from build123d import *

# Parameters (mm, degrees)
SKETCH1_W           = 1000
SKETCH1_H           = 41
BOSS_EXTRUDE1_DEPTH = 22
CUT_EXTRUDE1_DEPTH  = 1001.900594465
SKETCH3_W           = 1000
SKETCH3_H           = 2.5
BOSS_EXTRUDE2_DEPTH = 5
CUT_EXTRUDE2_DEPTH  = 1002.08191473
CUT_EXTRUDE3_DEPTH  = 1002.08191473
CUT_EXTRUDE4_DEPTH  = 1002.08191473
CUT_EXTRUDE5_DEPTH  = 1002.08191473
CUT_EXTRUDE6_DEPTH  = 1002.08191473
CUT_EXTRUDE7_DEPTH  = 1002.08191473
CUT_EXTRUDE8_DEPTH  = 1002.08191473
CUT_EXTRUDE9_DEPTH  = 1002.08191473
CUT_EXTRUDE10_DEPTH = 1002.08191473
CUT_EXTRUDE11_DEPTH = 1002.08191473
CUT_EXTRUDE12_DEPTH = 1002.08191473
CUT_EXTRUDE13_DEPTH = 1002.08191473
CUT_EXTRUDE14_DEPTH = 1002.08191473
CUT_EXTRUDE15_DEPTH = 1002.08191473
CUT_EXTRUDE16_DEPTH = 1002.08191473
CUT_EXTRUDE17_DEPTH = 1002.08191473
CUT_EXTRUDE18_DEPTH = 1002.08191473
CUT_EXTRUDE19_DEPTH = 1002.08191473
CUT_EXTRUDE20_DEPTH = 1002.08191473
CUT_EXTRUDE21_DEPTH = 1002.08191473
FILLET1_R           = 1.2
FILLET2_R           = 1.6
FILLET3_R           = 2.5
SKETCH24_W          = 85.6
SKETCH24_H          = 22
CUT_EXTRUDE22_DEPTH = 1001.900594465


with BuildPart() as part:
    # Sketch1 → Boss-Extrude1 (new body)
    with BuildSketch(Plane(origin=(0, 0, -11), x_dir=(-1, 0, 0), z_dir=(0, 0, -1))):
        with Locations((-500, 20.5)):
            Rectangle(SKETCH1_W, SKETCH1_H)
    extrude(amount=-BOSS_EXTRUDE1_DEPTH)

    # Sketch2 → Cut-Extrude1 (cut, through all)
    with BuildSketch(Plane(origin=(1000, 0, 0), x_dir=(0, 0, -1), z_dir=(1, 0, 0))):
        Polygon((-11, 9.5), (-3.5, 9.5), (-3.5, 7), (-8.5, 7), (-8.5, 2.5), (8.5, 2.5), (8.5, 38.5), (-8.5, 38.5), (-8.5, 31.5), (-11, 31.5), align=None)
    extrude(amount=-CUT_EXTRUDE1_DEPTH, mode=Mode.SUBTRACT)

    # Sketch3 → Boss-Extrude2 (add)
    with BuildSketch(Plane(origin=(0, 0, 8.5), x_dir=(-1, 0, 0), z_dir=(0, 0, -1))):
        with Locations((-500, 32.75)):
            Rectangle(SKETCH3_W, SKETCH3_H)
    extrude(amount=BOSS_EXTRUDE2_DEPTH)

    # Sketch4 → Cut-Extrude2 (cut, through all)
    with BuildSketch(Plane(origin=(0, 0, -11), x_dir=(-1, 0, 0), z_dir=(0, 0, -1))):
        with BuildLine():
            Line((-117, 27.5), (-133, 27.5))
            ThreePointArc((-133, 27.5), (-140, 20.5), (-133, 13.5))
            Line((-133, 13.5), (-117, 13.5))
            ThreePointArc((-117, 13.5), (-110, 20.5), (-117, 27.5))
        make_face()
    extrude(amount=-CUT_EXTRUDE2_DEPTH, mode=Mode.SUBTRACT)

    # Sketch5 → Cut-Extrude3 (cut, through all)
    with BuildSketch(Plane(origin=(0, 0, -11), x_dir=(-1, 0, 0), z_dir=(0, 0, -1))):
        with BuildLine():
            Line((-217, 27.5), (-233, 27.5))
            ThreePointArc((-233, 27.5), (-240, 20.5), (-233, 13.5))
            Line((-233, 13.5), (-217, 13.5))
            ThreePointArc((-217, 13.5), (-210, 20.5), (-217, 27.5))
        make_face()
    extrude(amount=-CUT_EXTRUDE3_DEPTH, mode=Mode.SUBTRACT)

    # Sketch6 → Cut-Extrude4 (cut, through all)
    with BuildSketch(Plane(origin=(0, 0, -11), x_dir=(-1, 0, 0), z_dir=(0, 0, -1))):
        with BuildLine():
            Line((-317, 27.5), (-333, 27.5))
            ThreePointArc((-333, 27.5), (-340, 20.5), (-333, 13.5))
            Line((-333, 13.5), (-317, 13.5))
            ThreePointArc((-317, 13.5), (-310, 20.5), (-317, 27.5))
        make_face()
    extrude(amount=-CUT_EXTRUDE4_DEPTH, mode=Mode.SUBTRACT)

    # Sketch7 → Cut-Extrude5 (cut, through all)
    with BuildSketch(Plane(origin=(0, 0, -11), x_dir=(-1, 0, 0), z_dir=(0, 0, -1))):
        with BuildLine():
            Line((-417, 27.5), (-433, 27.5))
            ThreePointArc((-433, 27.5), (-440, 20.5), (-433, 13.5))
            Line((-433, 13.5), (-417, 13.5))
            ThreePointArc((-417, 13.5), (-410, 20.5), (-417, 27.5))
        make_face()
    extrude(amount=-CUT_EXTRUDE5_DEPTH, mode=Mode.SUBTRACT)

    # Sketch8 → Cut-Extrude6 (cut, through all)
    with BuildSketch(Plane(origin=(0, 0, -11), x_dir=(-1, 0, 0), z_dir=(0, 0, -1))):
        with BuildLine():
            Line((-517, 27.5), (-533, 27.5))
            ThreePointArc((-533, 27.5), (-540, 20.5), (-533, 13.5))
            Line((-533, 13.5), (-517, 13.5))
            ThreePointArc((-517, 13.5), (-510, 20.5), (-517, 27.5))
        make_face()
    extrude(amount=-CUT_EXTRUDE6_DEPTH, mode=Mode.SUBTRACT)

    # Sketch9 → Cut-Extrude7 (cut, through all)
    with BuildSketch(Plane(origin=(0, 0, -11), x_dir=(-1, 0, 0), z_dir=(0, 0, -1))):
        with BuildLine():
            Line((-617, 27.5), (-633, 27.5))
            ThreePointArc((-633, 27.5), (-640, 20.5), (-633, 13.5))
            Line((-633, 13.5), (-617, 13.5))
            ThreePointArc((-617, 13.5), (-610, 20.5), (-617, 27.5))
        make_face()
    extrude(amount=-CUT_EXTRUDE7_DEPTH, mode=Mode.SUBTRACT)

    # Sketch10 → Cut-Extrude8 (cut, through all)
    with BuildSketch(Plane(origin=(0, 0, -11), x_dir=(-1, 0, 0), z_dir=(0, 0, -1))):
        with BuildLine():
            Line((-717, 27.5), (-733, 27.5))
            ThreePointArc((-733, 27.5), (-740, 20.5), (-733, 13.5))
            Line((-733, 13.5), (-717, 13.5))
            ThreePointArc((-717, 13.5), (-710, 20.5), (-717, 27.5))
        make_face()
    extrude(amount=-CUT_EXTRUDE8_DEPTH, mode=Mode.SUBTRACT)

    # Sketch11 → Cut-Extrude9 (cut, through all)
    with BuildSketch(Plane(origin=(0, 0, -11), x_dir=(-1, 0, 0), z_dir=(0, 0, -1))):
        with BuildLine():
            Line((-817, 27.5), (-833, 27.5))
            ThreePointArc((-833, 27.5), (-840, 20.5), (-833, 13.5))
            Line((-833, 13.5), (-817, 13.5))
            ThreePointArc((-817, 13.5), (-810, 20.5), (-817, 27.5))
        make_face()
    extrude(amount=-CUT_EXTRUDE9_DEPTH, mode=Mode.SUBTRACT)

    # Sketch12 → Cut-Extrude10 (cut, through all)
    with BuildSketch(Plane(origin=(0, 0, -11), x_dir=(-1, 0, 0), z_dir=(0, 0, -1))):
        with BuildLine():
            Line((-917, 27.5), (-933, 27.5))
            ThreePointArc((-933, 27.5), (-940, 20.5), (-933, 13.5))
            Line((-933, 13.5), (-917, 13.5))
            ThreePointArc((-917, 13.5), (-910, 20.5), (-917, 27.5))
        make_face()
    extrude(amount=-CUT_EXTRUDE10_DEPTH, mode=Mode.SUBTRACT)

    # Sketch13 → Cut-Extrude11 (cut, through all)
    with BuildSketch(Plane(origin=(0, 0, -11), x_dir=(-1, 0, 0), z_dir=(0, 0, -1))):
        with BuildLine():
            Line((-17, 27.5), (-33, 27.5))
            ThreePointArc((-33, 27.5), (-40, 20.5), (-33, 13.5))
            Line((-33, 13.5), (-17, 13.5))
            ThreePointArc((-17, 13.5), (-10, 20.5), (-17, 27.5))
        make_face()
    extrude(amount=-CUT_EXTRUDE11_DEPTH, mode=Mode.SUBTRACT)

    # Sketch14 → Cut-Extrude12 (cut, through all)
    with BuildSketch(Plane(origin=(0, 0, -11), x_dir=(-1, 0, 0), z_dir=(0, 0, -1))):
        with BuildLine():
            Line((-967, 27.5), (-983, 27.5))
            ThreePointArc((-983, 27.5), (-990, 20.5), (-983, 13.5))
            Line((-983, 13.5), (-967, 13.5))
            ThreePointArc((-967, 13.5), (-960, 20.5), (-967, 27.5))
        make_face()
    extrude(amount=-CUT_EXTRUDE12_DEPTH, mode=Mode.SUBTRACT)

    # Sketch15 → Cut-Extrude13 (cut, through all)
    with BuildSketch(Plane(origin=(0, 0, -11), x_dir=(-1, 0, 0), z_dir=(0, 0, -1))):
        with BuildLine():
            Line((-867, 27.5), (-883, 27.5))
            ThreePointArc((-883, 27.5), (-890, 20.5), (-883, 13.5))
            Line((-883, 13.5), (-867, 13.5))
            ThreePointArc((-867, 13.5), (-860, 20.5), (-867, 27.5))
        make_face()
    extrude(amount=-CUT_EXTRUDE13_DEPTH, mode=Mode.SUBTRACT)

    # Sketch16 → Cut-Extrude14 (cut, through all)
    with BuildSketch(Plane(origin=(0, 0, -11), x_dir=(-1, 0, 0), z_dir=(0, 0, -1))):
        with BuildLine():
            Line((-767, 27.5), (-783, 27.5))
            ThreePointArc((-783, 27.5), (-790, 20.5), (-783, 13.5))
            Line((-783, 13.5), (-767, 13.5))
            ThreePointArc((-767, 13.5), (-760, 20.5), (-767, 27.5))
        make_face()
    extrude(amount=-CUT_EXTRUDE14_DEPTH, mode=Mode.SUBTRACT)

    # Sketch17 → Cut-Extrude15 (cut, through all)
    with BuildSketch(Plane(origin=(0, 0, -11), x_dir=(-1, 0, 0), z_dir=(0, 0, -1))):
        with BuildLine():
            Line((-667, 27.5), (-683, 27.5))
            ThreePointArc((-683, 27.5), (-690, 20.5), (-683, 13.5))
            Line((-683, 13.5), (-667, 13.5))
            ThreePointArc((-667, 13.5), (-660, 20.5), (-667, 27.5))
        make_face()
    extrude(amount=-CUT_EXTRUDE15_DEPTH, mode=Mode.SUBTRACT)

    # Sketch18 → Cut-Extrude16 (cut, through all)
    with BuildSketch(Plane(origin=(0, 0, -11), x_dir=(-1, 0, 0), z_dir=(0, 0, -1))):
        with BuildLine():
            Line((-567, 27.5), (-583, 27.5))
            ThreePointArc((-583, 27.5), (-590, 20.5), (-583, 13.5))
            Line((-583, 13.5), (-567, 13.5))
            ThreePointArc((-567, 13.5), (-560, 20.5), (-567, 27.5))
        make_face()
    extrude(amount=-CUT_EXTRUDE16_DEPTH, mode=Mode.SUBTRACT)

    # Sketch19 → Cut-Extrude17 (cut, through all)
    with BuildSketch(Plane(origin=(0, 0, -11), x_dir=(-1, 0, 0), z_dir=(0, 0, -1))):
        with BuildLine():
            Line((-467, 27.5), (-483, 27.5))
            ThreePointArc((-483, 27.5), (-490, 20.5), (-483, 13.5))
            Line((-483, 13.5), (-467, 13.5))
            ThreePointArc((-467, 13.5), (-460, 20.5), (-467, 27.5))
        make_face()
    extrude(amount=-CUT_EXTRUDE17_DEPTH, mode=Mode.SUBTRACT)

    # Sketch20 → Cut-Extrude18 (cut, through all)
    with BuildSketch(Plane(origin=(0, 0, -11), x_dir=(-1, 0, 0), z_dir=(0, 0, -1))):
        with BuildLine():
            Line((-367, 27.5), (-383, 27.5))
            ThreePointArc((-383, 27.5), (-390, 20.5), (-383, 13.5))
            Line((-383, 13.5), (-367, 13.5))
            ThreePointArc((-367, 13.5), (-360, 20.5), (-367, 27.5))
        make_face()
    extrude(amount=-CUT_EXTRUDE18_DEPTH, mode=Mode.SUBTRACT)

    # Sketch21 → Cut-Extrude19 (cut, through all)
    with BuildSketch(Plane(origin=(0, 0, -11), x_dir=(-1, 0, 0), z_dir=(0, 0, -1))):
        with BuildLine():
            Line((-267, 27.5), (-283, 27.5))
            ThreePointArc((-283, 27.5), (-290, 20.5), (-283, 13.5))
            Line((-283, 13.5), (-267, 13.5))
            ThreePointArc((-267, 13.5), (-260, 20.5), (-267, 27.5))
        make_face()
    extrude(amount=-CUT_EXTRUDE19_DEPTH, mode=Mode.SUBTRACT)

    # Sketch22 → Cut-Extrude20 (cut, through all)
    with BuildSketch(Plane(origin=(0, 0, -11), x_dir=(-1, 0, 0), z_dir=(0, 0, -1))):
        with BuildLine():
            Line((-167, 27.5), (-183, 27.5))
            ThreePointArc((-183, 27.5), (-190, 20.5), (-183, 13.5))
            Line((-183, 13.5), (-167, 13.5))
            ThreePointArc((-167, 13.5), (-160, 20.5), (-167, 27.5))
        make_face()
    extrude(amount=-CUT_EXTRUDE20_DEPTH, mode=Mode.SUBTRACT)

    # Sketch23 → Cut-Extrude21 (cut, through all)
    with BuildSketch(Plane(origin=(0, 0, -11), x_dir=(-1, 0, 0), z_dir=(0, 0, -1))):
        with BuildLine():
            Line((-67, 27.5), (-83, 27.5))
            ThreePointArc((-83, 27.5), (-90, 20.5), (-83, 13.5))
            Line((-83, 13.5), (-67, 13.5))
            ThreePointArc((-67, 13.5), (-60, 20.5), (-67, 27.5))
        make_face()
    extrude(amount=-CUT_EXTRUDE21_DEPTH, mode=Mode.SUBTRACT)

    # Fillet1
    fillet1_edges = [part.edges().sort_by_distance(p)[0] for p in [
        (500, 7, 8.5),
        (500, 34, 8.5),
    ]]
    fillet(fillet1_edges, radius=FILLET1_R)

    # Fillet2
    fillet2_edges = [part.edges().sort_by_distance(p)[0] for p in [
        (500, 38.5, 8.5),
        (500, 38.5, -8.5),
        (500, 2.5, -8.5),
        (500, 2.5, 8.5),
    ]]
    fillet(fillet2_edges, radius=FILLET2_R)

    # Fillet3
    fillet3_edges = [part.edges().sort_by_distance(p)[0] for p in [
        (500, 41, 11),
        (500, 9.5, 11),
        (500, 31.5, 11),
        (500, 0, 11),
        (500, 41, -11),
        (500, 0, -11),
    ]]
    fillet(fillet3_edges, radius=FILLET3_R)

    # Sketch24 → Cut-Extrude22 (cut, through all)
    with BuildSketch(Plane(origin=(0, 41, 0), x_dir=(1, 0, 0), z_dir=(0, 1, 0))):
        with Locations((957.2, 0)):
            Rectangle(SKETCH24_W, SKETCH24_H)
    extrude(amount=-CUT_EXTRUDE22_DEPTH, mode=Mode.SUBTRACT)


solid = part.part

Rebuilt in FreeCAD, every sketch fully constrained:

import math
import FreeCAD as App
import Part
import Sketcher
from FreeCAD import Vector


def edges_at(feature, points):
    """Names of the edges that pass closest to the given points."""
    edges = feature.Shape.Edges
    near = lambda p: min(range(len(edges)), key=lambda i: edges[i].distToShape(Part.Vertex(*p))[0])
    return sorted({f"Edge{near(p) + 1}" for p in points})

doc = App.newDocument("Part")
body = doc.addObject("PartDesign::Body", "Body")

# Sketch on XY plane
sketch1 = body.newObject("Sketcher::SketchObject", "Sketch")
sketch1.AttachmentSupport = (doc.getObject("XY_Plane"), [""])
sketch1.MapMode = "FlatFace"
sketch1.AttachmentOffset = App.Placement(Vector(0, 0, -11), App.Rotation())
sketch1.addGeometry([
    Part.LineSegment(Vector(1000, 41, 0), Vector(1000, 0, 0)),
    Part.LineSegment(Vector(1000, 0, 0), Vector(0, 0, 0)),
    Part.LineSegment(Vector(0, 0, 0), Vector(0, 41, 0)),
    Part.LineSegment(Vector(0, 41, 0), Vector(1000, 41, 0)),
], False)
sketch1.addConstraint([
    Sketcher.Constraint("Coincident", 0, 2, 1, 1),
    Sketcher.Constraint("Coincident", 1, 2, 2, 1),
    Sketcher.Constraint("Coincident", 2, 2, 3, 1),
    Sketcher.Constraint("Coincident", 3, 2, 0, 1),
    Sketcher.Constraint("Vertical", 0),
    Sketcher.Constraint("Horizontal", 1),
    Sketcher.Constraint("Vertical", 2),
    Sketcher.Constraint("Horizontal", 3),
    Sketcher.Constraint("Coincident", 1, 2, -1, 1),
    Sketcher.Constraint("DistanceX", 1, 2, 1, 1, 1000.0),
    Sketcher.Constraint("DistanceY", 0, 2, 0, 1, 41.0),
])
pad1 = body.newObject("PartDesign::Pad", "Pad")
pad1.Profile = sketch1
pad1.Length = 22

# Sketch on YZ plane
sketch2 = body.newObject("Sketcher::SketchObject", "Sketch001")
sketch2.AttachmentSupport = (doc.getObject("YZ_Plane"), [""])
sketch2.MapMode = "FlatFace"
sketch2.AttachmentOffset = App.Placement(Vector(0, 0, 1000), App.Rotation())
sketch2.addGeometry([
    Part.LineSegment(Vector(9.5, 11, 0), Vector(9.5, 3.5, 0)),  # 0
    Part.LineSegment(Vector(9.5, 3.5, 0), Vector(7, 3.5, 0)),  # 1
    Part.LineSegment(Vector(7, 3.5, 0), Vector(7, 8.5, 0)),  # 2
    Part.LineSegment(Vector(7, 8.5, 0), Vector(2.5, 8.5, 0)),  # 3
    Part.LineSegment(Vector(2.5, 8.5, 0), Vector(2.5, -8.5, 0)),  # 4
    Part.LineSegment(Vector(2.5, -8.5, 0), Vector(38.5, -8.5, 0)),  # 5
    Part.LineSegment(Vector(38.5, -8.5, 0), Vector(38.5, 8.5, 0)),  # 6
    Part.LineSegment(Vector(38.5, 8.5, 0), Vector(31.5, 8.5, 0)),  # 7
    Part.LineSegment(Vector(31.5, 8.5, 0), Vector(31.5, 11, 0)),  # 8
    Part.LineSegment(Vector(31.5, 11, 0), Vector(9.5, 11, 0)),  # 9
], False)
sketch2.addConstraint([
    Sketcher.Constraint("Coincident", 0, 2, 1, 1),
    Sketcher.Constraint("Coincident", 1, 2, 2, 1),
    Sketcher.Constraint("Coincident", 2, 2, 3, 1),
    Sketcher.Constraint("Coincident", 3, 2, 4, 1),
    Sketcher.Constraint("Coincident", 4, 2, 5, 1),
    Sketcher.Constraint("Coincident", 5, 2, 6, 1),
    Sketcher.Constraint("Coincident", 6, 2, 7, 1),
    Sketcher.Constraint("Coincident", 7, 2, 8, 1),
    Sketcher.Constraint("Coincident", 8, 2, 9, 1),
    Sketcher.Constraint("Coincident", 9, 2, 0, 1),
    Sketcher.Constraint("Vertical", 0),
    Sketcher.Constraint("Horizontal", 1),
    Sketcher.Constraint("Vertical", 2),
    Sketcher.Constraint("Horizontal", 3),
    Sketcher.Constraint("Vertical", 4),
    Sketcher.Constraint("Horizontal", 5),
    Sketcher.Constraint("Vertical", 6),
    Sketcher.Constraint("Horizontal", 7),
    Sketcher.Constraint("Vertical", 8),
    Sketcher.Constraint("Horizontal", 9),
    Sketcher.Constraint("Horizontal", 3, 2, 6, 2),
    Sketcher.Constraint("Equal", 1, 8),
    Sketcher.Constraint("DistanceX", 5, 1, 5, 2, 36.0),
    Sketcher.Constraint("DistanceX", 7, 2, 7, 1, 7.0),
    Sketcher.Constraint("DistanceX", 9, 2, 9, 1, 22.0),
    Sketcher.Constraint("DistanceY", 2, 1, 2, 2, 5.0),
    Sketcher.Constraint("DistanceY", 4, 2, 4, 1, 17.0),
    Sketcher.Constraint("DistanceX", 1, 2, 1, 1, 2.5),
    Sketcher.Constraint("DistanceX", -1, 1, 1, 2, 7.0),
    Sketcher.Constraint("DistanceY", -1, 1, 8, 2, 11.0),
])
pocket1 = body.newObject("PartDesign::Pocket", "Pocket")
pocket1.Profile = sketch2
pocket1.Type = "ThroughAll"

# Sketch on XY plane
sketch3 = body.newObject("Sketcher::SketchObject", "Sketch002")
sketch3.AttachmentSupport = (doc.getObject("XY_Plane"), [""])
sketch3.MapMode = "FlatFace"
sketch3.AttachmentOffset = App.Placement(Vector(0, 0, 8.5), App.Rotation())
sketch3.addGeometry([
    Part.LineSegment(Vector(1000, 34, 0), Vector(1000, 31.5, 0)),
    Part.LineSegment(Vector(1000, 31.5, 0), Vector(0, 31.5, 0)),
    Part.LineSegment(Vector(0, 31.5, 0), Vector(0, 34, 0)),
    Part.LineSegment(Vector(0, 34, 0), Vector(1000, 34, 0)),
], False)
sketch3.addConstraint([
    Sketcher.Constraint("Coincident", 0, 2, 1, 1),
    Sketcher.Constraint("Coincident", 1, 2, 2, 1),
    Sketcher.Constraint("Coincident", 2, 2, 3, 1),
    Sketcher.Constraint("Coincident", 3, 2, 0, 1),
    Sketcher.Constraint("Vertical", 0),
    Sketcher.Constraint("Horizontal", 1),
    Sketcher.Constraint("Vertical", 2),
    Sketcher.Constraint("Horizontal", 3),
    Sketcher.Constraint("PointOnObject", 1, 2, -2),
    Sketcher.Constraint("DistanceX", 1, 2, 1, 1, 1000.0),
    Sketcher.Constraint("DistanceY", 0, 2, 0, 1, 2.5),
    Sketcher.Constraint("DistanceY", -1, 1, 2, 2, 34.0),
])
pad2 = body.newObject("PartDesign::Pad", "Pad001")
pad2.Profile = sketch3
pad2.Length = 5
pad2.Reversed = True

# Sketch on XY plane
sketch4 = body.newObject("Sketcher::SketchObject", "Sketch003")
sketch4.AttachmentSupport = (doc.getObject("XY_Plane"), [""])
sketch4.MapMode = "FlatFace"
sketch4.AttachmentOffset = App.Placement(Vector(0, 0, -11), App.Rotation())
sketch4.addGeometry([
    Part.LineSegment(Vector(117, 27.5, 0), Vector(133, 27.5, 0)),
    Part.ArcOfCircle(Part.Circle(Vector(133, 20.5, 0), Vector(0, 0, 1), 7), math.radians(-90), math.radians(90)),
    Part.LineSegment(Vector(133, 13.5, 0), Vector(117, 13.5, 0)),
    Part.ArcOfCircle(Part.Circle(Vector(117, 20.5, 0), Vector(0, 0, 1), 7), math.radians(90), math.radians(270)),
], False)
sketch4.addConstraint([
    Sketcher.Constraint("Tangent", 0, 2, 1, 2),
    Sketcher.Constraint("Tangent", 1, 1, 2, 1),
    Sketcher.Constraint("Tangent", 2, 2, 3, 2),
    Sketcher.Constraint("Tangent", 3, 1, 0, 1),
    Sketcher.Constraint("Horizontal", 0),
    Sketcher.Constraint("Horizontal", 2),
    Sketcher.Constraint("Radius", 1, 7.0),
    Sketcher.Constraint("DistanceX", 0, 1, 0, 2, 16.0),
    Sketcher.Constraint("DistanceX", -1, 1, 1, 3, 133.0),
    Sketcher.Constraint("DistanceY", -1, 1, 1, 3, 20.5),
])
pocket2 = body.newObject("PartDesign::Pocket", "Pocket001")
pocket2.Profile = sketch4
pocket2.Type = "ThroughAll"
pocket2.Reversed = True

# Sketch on XY plane
sketch5 = body.newObject("Sketcher::SketchObject", "Sketch004")
sketch5.AttachmentSupport = (doc.getObject("XY_Plane"), [""])
sketch5.MapMode = "FlatFace"
sketch5.AttachmentOffset = App.Placement(Vector(0, 0, -11), App.Rotation())
sketch5.addGeometry([
    Part.LineSegment(Vector(217, 27.5, 0), Vector(233, 27.5, 0)),
    Part.ArcOfCircle(Part.Circle(Vector(233, 20.5, 0), Vector(0, 0, 1), 7), math.radians(-90), math.radians(90)),
    Part.LineSegment(Vector(233, 13.5, 0), Vector(217, 13.5, 0)),
    Part.ArcOfCircle(Part.Circle(Vector(217, 20.5, 0), Vector(0, 0, 1), 7), math.radians(90), math.radians(270)),
], False)
sketch5.addConstraint([
    Sketcher.Constraint("Tangent", 0, 2, 1, 2),
    Sketcher.Constraint("Tangent", 1, 1, 2, 1),
    Sketcher.Constraint("Tangent", 2, 2, 3, 2),
    Sketcher.Constraint("Tangent", 3, 1, 0, 1),
    Sketcher.Constraint("Horizontal", 0),
    Sketcher.Constraint("Horizontal", 2),
    Sketcher.Constraint("Radius", 1, 7.0),
    Sketcher.Constraint("DistanceX", 0, 1, 0, 2, 16.0),
    Sketcher.Constraint("DistanceX", -1, 1, 1, 3, 233.0),
    Sketcher.Constraint("DistanceY", -1, 1, 1, 3, 20.5),
])
pocket3 = body.newObject("PartDesign::Pocket", "Pocket002")
pocket3.Profile = sketch5
pocket3.Type = "ThroughAll"
pocket3.Reversed = True

# Sketch on XY plane
sketch6 = body.newObject("Sketcher::SketchObject", "Sketch005")
sketch6.AttachmentSupport = (doc.getObject("XY_Plane"), [""])
sketch6.MapMode = "FlatFace"
sketch6.AttachmentOffset = App.Placement(Vector(0, 0, -11), App.Rotation())
sketch6.addGeometry([
    Part.LineSegment(Vector(317, 27.5, 0), Vector(333, 27.5, 0)),
    Part.ArcOfCircle(Part.Circle(Vector(333, 20.5, 0), Vector(0, 0, 1), 7), math.radians(-90), math.radians(90)),
    Part.LineSegment(Vector(333, 13.5, 0), Vector(317, 13.5, 0)),
    Part.ArcOfCircle(Part.Circle(Vector(317, 20.5, 0), Vector(0, 0, 1), 7), math.radians(90), math.radians(270)),
], False)
sketch6.addConstraint([
    Sketcher.Constraint("Tangent", 0, 2, 1, 2),
    Sketcher.Constraint("Tangent", 1, 1, 2, 1),
    Sketcher.Constraint("Tangent", 2, 2, 3, 2),
    Sketcher.Constraint("Tangent", 3, 1, 0, 1),
    Sketcher.Constraint("Horizontal", 0),
    Sketcher.Constraint("Horizontal", 2),
    Sketcher.Constraint("Radius", 1, 7.0),
    Sketcher.Constraint("DistanceX", 0, 1, 0, 2, 16.0),
    Sketcher.Constraint("DistanceX", -1, 1, 1, 3, 333.0),
    Sketcher.Constraint("DistanceY", -1, 1, 1, 3, 20.5),
])
pocket4 = body.newObject("PartDesign::Pocket", "Pocket003")
pocket4.Profile = sketch6
pocket4.Type = "ThroughAll"
pocket4.Reversed = True

# Sketch on XY plane
sketch7 = body.newObject("Sketcher::SketchObject", "Sketch006")
sketch7.AttachmentSupport = (doc.getObject("XY_Plane"), [""])
sketch7.MapMode = "FlatFace"
sketch7.AttachmentOffset = App.Placement(Vector(0, 0, -11), App.Rotation())
sketch7.addGeometry([
    Part.LineSegment(Vector(417, 27.5, 0), Vector(433, 27.5, 0)),
    Part.ArcOfCircle(Part.Circle(Vector(433, 20.5, 0), Vector(0, 0, 1), 7), math.radians(-90), math.radians(90)),
    Part.LineSegment(Vector(433, 13.5, 0), Vector(417, 13.5, 0)),
    Part.ArcOfCircle(Part.Circle(Vector(417, 20.5, 0), Vector(0, 0, 1), 7), math.radians(90), math.radians(270)),
], False)
sketch7.addConstraint([
    Sketcher.Constraint("Tangent", 0, 2, 1, 2),
    Sketcher.Constraint("Tangent", 1, 1, 2, 1),
    Sketcher.Constraint("Tangent", 2, 2, 3, 2),
    Sketcher.Constraint("Tangent", 3, 1, 0, 1),
    Sketcher.Constraint("Horizontal", 0),
    Sketcher.Constraint("Horizontal", 2),
    Sketcher.Constraint("Radius", 1, 7.0),
    Sketcher.Constraint("DistanceX", 0, 1, 0, 2, 16.0),
    Sketcher.Constraint("DistanceX", -1, 1, 1, 3, 433.0),
    Sketcher.Constraint("DistanceY", -1, 1, 1, 3, 20.5),
])
pocket5 = body.newObject("PartDesign::Pocket", "Pocket004")
pocket5.Profile = sketch7
pocket5.Type = "ThroughAll"
pocket5.Reversed = True

# Sketch on XY plane
sketch8 = body.newObject("Sketcher::SketchObject", "Sketch007")
sketch8.AttachmentSupport = (doc.getObject("XY_Plane"), [""])
sketch8.MapMode = "FlatFace"
sketch8.AttachmentOffset = App.Placement(Vector(0, 0, -11), App.Rotation())
sketch8.addGeometry([
    Part.LineSegment(Vector(517, 27.5, 0), Vector(533, 27.5, 0)),
    Part.ArcOfCircle(Part.Circle(Vector(533, 20.5, 0), Vector(0, 0, 1), 7), math.radians(-90), math.radians(90)),
    Part.LineSegment(Vector(533, 13.5, 0), Vector(517, 13.5, 0)),
    Part.ArcOfCircle(Part.Circle(Vector(517, 20.5, 0), Vector(0, 0, 1), 7), math.radians(90), math.radians(270)),
], False)
sketch8.addConstraint([
    Sketcher.Constraint("Tangent", 0, 2, 1, 2),
    Sketcher.Constraint("Tangent", 1, 1, 2, 1),
    Sketcher.Constraint("Tangent", 2, 2, 3, 2),
    Sketcher.Constraint("Tangent", 3, 1, 0, 1),
    Sketcher.Constraint("Horizontal", 0),
    Sketcher.Constraint("Horizontal", 2),
    Sketcher.Constraint("Radius", 1, 7.0),
    Sketcher.Constraint("DistanceX", 0, 1, 0, 2, 16.0),
    Sketcher.Constraint("DistanceX", -1, 1, 1, 3, 533.0),
    Sketcher.Constraint("DistanceY", -1, 1, 1, 3, 20.5),
])
pocket6 = body.newObject("PartDesign::Pocket", "Pocket005")
pocket6.Profile = sketch8
pocket6.Type = "ThroughAll"
pocket6.Reversed = True

# Sketch on XY plane
sketch9 = body.newObject("Sketcher::SketchObject", "Sketch008")
sketch9.AttachmentSupport = (doc.getObject("XY_Plane"), [""])
sketch9.MapMode = "FlatFace"
sketch9.AttachmentOffset = App.Placement(Vector(0, 0, -11), App.Rotation())
sketch9.addGeometry([
    Part.LineSegment(Vector(617, 27.5, 0), Vector(633, 27.5, 0)),
    Part.ArcOfCircle(Part.Circle(Vector(633, 20.5, 0), Vector(0, 0, 1), 7), math.radians(-90), math.radians(90)),
    Part.LineSegment(Vector(633, 13.5, 0), Vector(617, 13.5, 0)),
    Part.ArcOfCircle(Part.Circle(Vector(617, 20.5, 0), Vector(0, 0, 1), 7), math.radians(90), math.radians(270)),
], False)
sketch9.addConstraint([
    Sketcher.Constraint("Tangent", 0, 2, 1, 2),
    Sketcher.Constraint("Tangent", 1, 1, 2, 1),
    Sketcher.Constraint("Tangent", 2, 2, 3, 2),
    Sketcher.Constraint("Tangent", 3, 1, 0, 1),
    Sketcher.Constraint("Horizontal", 0),
    Sketcher.Constraint("Horizontal", 2),
    Sketcher.Constraint("Radius", 1, 7.0),
    Sketcher.Constraint("DistanceX", 0, 1, 0, 2, 16.0),
    Sketcher.Constraint("DistanceX", -1, 1, 1, 3, 633.0),
    Sketcher.Constraint("DistanceY", -1, 1, 1, 3, 20.5),
])
pocket7 = body.newObject("PartDesign::Pocket", "Pocket006")
pocket7.Profile = sketch9
pocket7.Type = "ThroughAll"
pocket7.Reversed = True

# Sketch on XY plane
sketch10 = body.newObject("Sketcher::SketchObject", "Sketch009")
sketch10.AttachmentSupport = (doc.getObject("XY_Plane"), [""])
sketch10.MapMode = "FlatFace"
sketch10.AttachmentOffset = App.Placement(Vector(0, 0, -11), App.Rotation())
sketch10.addGeometry([
    Part.LineSegment(Vector(717, 27.5, 0), Vector(733, 27.5, 0)),
    Part.ArcOfCircle(Part.Circle(Vector(733, 20.5, 0), Vector(0, 0, 1), 7), math.radians(-90), math.radians(90)),
    Part.LineSegment(Vector(733, 13.5, 0), Vector(717, 13.5, 0)),
    Part.ArcOfCircle(Part.Circle(Vector(717, 20.5, 0), Vector(0, 0, 1), 7), math.radians(90), math.radians(270)),
], False)
sketch10.addConstraint([
    Sketcher.Constraint("Tangent", 0, 2, 1, 2),
    Sketcher.Constraint("Tangent", 1, 1, 2, 1),
    Sketcher.Constraint("Tangent", 2, 2, 3, 2),
    Sketcher.Constraint("Tangent", 3, 1, 0, 1),
    Sketcher.Constraint("Horizontal", 0),
    Sketcher.Constraint("Horizontal", 2),
    Sketcher.Constraint("Radius", 1, 7.0),
    Sketcher.Constraint("DistanceX", 0, 1, 0, 2, 16.0),
    Sketcher.Constraint("DistanceX", -1, 1, 1, 3, 733.0),
    Sketcher.Constraint("DistanceY", -1, 1, 1, 3, 20.5),
])
pocket8 = body.newObject("PartDesign::Pocket", "Pocket007")
pocket8.Profile = sketch10
pocket8.Type = "ThroughAll"
pocket8.Reversed = True

# Sketch on XY plane
sketch11 = body.newObject("Sketcher::SketchObject", "Sketch010")
sketch11.AttachmentSupport = (doc.getObject("XY_Plane"), [""])
sketch11.MapMode = "FlatFace"
sketch11.AttachmentOffset = App.Placement(Vector(0, 0, -11), App.Rotation())
sketch11.addGeometry([
    Part.LineSegment(Vector(817, 27.5, 0), Vector(833, 27.5, 0)),
    Part.ArcOfCircle(Part.Circle(Vector(833, 20.5, 0), Vector(0, 0, 1), 7), math.radians(-90), math.radians(90)),
    Part.LineSegment(Vector(833, 13.5, 0), Vector(817, 13.5, 0)),
    Part.ArcOfCircle(Part.Circle(Vector(817, 20.5, 0), Vector(0, 0, 1), 7), math.radians(90), math.radians(270)),
], False)
sketch11.addConstraint([
    Sketcher.Constraint("Tangent", 0, 2, 1, 2),
    Sketcher.Constraint("Tangent", 1, 1, 2, 1),
    Sketcher.Constraint("Tangent", 2, 2, 3, 2),
    Sketcher.Constraint("Tangent", 3, 1, 0, 1),
    Sketcher.Constraint("Horizontal", 0),
    Sketcher.Constraint("Horizontal", 2),
    Sketcher.Constraint("Radius", 1, 7.0),
    Sketcher.Constraint("DistanceX", 0, 1, 0, 2, 16.0),
    Sketcher.Constraint("DistanceX", -1, 1, 1, 3, 833.0),
    Sketcher.Constraint("DistanceY", -1, 1, 1, 3, 20.5),
])
pocket9 = body.newObject("PartDesign::Pocket", "Pocket008")
pocket9.Profile = sketch11
pocket9.Type = "ThroughAll"
pocket9.Reversed = True

# Sketch on XY plane
sketch12 = body.newObject("Sketcher::SketchObject", "Sketch011")
sketch12.AttachmentSupport = (doc.getObject("XY_Plane"), [""])
sketch12.MapMode = "FlatFace"
sketch12.AttachmentOffset = App.Placement(Vector(0, 0, -11), App.Rotation())
sketch12.addGeometry([
    Part.LineSegment(Vector(917, 27.5, 0), Vector(933, 27.5, 0)),
    Part.ArcOfCircle(Part.Circle(Vector(933, 20.5, 0), Vector(0, 0, 1), 7), math.radians(-90), math.radians(90)),
    Part.LineSegment(Vector(933, 13.5, 0), Vector(917, 13.5, 0)),
    Part.ArcOfCircle(Part.Circle(Vector(917, 20.5, 0), Vector(0, 0, 1), 7), math.radians(90), math.radians(270)),
], False)
sketch12.addConstraint([
    Sketcher.Constraint("Tangent", 0, 2, 1, 2),
    Sketcher.Constraint("Tangent", 1, 1, 2, 1),
    Sketcher.Constraint("Tangent", 2, 2, 3, 2),
    Sketcher.Constraint("Tangent", 3, 1, 0, 1),
    Sketcher.Constraint("Horizontal", 0),
    Sketcher.Constraint("Horizontal", 2),
    Sketcher.Constraint("Radius", 1, 7.0),
    Sketcher.Constraint("DistanceX", 0, 1, 0, 2, 16.0),
    Sketcher.Constraint("DistanceX", -1, 1, 1, 3, 933.0),
    Sketcher.Constraint("DistanceY", -1, 1, 1, 3, 20.5),
])
pocket10 = body.newObject("PartDesign::Pocket", "Pocket009")
pocket10.Profile = sketch12
pocket10.Type = "ThroughAll"
pocket10.Reversed = True

# Sketch on XY plane
sketch13 = body.newObject("Sketcher::SketchObject", "Sketch012")
sketch13.AttachmentSupport = (doc.getObject("XY_Plane"), [""])
sketch13.MapMode = "FlatFace"
sketch13.AttachmentOffset = App.Placement(Vector(0, 0, -11), App.Rotation())
sketch13.addGeometry([
    Part.LineSegment(Vector(17, 27.5, 0), Vector(33, 27.5, 0)),
    Part.ArcOfCircle(Part.Circle(Vector(33, 20.5, 0), Vector(0, 0, 1), 7), math.radians(-90), math.radians(90)),
    Part.LineSegment(Vector(33, 13.5, 0), Vector(17, 13.5, 0)),
    Part.ArcOfCircle(Part.Circle(Vector(17, 20.5, 0), Vector(0, 0, 1), 7), math.radians(90), math.radians(270)),
], False)
sketch13.addConstraint([
    Sketcher.Constraint("Tangent", 0, 2, 1, 2),
    Sketcher.Constraint("Tangent", 1, 1, 2, 1),
    Sketcher.Constraint("Tangent", 2, 2, 3, 2),
    Sketcher.Constraint("Tangent", 3, 1, 0, 1),
    Sketcher.Constraint("Horizontal", 0),
    Sketcher.Constraint("Horizontal", 2),
    Sketcher.Constraint("Radius", 1, 7.0),
    Sketcher.Constraint("DistanceX", 0, 1, 0, 2, 16.0),
    Sketcher.Constraint("DistanceX", -1, 1, 1, 3, 33.0),
    Sketcher.Constraint("DistanceY", -1, 1, 1, 3, 20.5),
])
pocket11 = body.newObject("PartDesign::Pocket", "Pocket010")
pocket11.Profile = sketch13
pocket11.Type = "ThroughAll"
pocket11.Reversed = True

# Sketch on XY plane
sketch14 = body.newObject("Sketcher::SketchObject", "Sketch013")
sketch14.AttachmentSupport = (doc.getObject("XY_Plane"), [""])
sketch14.MapMode = "FlatFace"
sketch14.AttachmentOffset = App.Placement(Vector(0, 0, -11), App.Rotation())
sketch14.addGeometry([
    Part.LineSegment(Vector(967, 27.5, 0), Vector(983, 27.5, 0)),
    Part.ArcOfCircle(Part.Circle(Vector(983, 20.5, 0), Vector(0, 0, 1), 7), math.radians(-90), math.radians(90)),
    Part.LineSegment(Vector(983, 13.5, 0), Vector(967, 13.5, 0)),
    Part.ArcOfCircle(Part.Circle(Vector(967, 20.5, 0), Vector(0, 0, 1), 7), math.radians(90), math.radians(270)),
], False)
sketch14.addConstraint([
    Sketcher.Constraint("Tangent", 0, 2, 1, 2),
    Sketcher.Constraint("Tangent", 1, 1, 2, 1),
    Sketcher.Constraint("Tangent", 2, 2, 3, 2),
    Sketcher.Constraint("Tangent", 3, 1, 0, 1),
    Sketcher.Constraint("Horizontal", 0),
    Sketcher.Constraint("Horizontal", 2),
    Sketcher.Constraint("Radius", 1, 7.0),
    Sketcher.Constraint("DistanceX", 0, 1, 0, 2, 16.0),
    Sketcher.Constraint("DistanceX", -1, 1, 1, 3, 983.0),
    Sketcher.Constraint("DistanceY", -1, 1, 1, 3, 20.5),
])
pocket12 = body.newObject("PartDesign::Pocket", "Pocket011")
pocket12.Profile = sketch14
pocket12.Type = "ThroughAll"
pocket12.Reversed = True

# Sketch on XY plane
sketch15 = body.newObject("Sketcher::SketchObject", "Sketch014")
sketch15.AttachmentSupport = (doc.getObject("XY_Plane"), [""])
sketch15.MapMode = "FlatFace"
sketch15.AttachmentOffset = App.Placement(Vector(0, 0, -11), App.Rotation())
sketch15.addGeometry([
    Part.LineSegment(Vector(867, 27.5, 0), Vector(883, 27.5, 0)),
    Part.ArcOfCircle(Part.Circle(Vector(883, 20.5, 0), Vector(0, 0, 1), 7), math.radians(-90), math.radians(90)),
    Part.LineSegment(Vector(883, 13.5, 0), Vector(867, 13.5, 0)),
    Part.ArcOfCircle(Part.Circle(Vector(867, 20.5, 0), Vector(0, 0, 1), 7), math.radians(90), math.radians(270)),
], False)
sketch15.addConstraint([
    Sketcher.Constraint("Tangent", 0, 2, 1, 2),
    Sketcher.Constraint("Tangent", 1, 1, 2, 1),
    Sketcher.Constraint("Tangent", 2, 2, 3, 2),
    Sketcher.Constraint("Tangent", 3, 1, 0, 1),
    Sketcher.Constraint("Horizontal", 0),
    Sketcher.Constraint("Horizontal", 2),
    Sketcher.Constraint("Radius", 1, 7.0),
    Sketcher.Constraint("DistanceX", 0, 1, 0, 2, 16.0),
    Sketcher.Constraint("DistanceX", -1, 1, 1, 3, 883.0),
    Sketcher.Constraint("DistanceY", -1, 1, 1, 3, 20.5),
])
pocket13 = body.newObject("PartDesign::Pocket", "Pocket012")
pocket13.Profile = sketch15
pocket13.Type = "ThroughAll"
pocket13.Reversed = True

# Sketch on XY plane
sketch16 = body.newObject("Sketcher::SketchObject", "Sketch015")
sketch16.AttachmentSupport = (doc.getObject("XY_Plane"), [""])
sketch16.MapMode = "FlatFace"
sketch16.AttachmentOffset = App.Placement(Vector(0, 0, -11), App.Rotation())
sketch16.addGeometry([
    Part.LineSegment(Vector(767, 27.5, 0), Vector(783, 27.5, 0)),
    Part.ArcOfCircle(Part.Circle(Vector(783, 20.5, 0), Vector(0, 0, 1), 7), math.radians(-90), math.radians(90)),
    Part.LineSegment(Vector(783, 13.5, 0), Vector(767, 13.5, 0)),
    Part.ArcOfCircle(Part.Circle(Vector(767, 20.5, 0), Vector(0, 0, 1), 7), math.radians(90), math.radians(270)),
], False)
sketch16.addConstraint([
    Sketcher.Constraint("Tangent", 0, 2, 1, 2),
    Sketcher.Constraint("Tangent", 1, 1, 2, 1),
    Sketcher.Constraint("Tangent", 2, 2, 3, 2),
    Sketcher.Constraint("Tangent", 3, 1, 0, 1),
    Sketcher.Constraint("Horizontal", 0),
    Sketcher.Constraint("Horizontal", 2),
    Sketcher.Constraint("Radius", 1, 7.0),
    Sketcher.Constraint("DistanceX", 0, 1, 0, 2, 16.0),
    Sketcher.Constraint("DistanceX", -1, 1, 1, 3, 783.0),
    Sketcher.Constraint("DistanceY", -1, 1, 1, 3, 20.5),
])
pocket14 = body.newObject("PartDesign::Pocket", "Pocket013")
pocket14.Profile = sketch16
pocket14.Type = "ThroughAll"
pocket14.Reversed = True

# Sketch on XY plane
sketch17 = body.newObject("Sketcher::SketchObject", "Sketch016")
sketch17.AttachmentSupport = (doc.getObject("XY_Plane"), [""])
sketch17.MapMode = "FlatFace"
sketch17.AttachmentOffset = App.Placement(Vector(0, 0, -11), App.Rotation())
sketch17.addGeometry([
    Part.LineSegment(Vector(667, 27.5, 0), Vector(683, 27.5, 0)),
    Part.ArcOfCircle(Part.Circle(Vector(683, 20.5, 0), Vector(0, 0, 1), 7), math.radians(-90), math.radians(90)),
    Part.LineSegment(Vector(683, 13.5, 0), Vector(667, 13.5, 0)),
    Part.ArcOfCircle(Part.Circle(Vector(667, 20.5, 0), Vector(0, 0, 1), 7), math.radians(90), math.radians(270)),
], False)
sketch17.addConstraint([
    Sketcher.Constraint("Tangent", 0, 2, 1, 2),
    Sketcher.Constraint("Tangent", 1, 1, 2, 1),
    Sketcher.Constraint("Tangent", 2, 2, 3, 2),
    Sketcher.Constraint("Tangent", 3, 1, 0, 1),
    Sketcher.Constraint("Horizontal", 0),
    Sketcher.Constraint("Horizontal", 2),
    Sketcher.Constraint("Radius", 1, 7.0),
    Sketcher.Constraint("DistanceX", 0, 1, 0, 2, 16.0),
    Sketcher.Constraint("DistanceX", -1, 1, 1, 3, 683.0),
    Sketcher.Constraint("DistanceY", -1, 1, 1, 3, 20.5),
])
pocket15 = body.newObject("PartDesign::Pocket", "Pocket014")
pocket15.Profile = sketch17
pocket15.Type = "ThroughAll"
pocket15.Reversed = True

# Sketch on XY plane
sketch18 = body.newObject("Sketcher::SketchObject", "Sketch017")
sketch18.AttachmentSupport = (doc.getObject("XY_Plane"), [""])
sketch18.MapMode = "FlatFace"
sketch18.AttachmentOffset = App.Placement(Vector(0, 0, -11), App.Rotation())
sketch18.addGeometry([
    Part.LineSegment(Vector(567, 27.5, 0), Vector(583, 27.5, 0)),
    Part.ArcOfCircle(Part.Circle(Vector(583, 20.5, 0), Vector(0, 0, 1), 7), math.radians(-90), math.radians(90)),
    Part.LineSegment(Vector(583, 13.5, 0), Vector(567, 13.5, 0)),
    Part.ArcOfCircle(Part.Circle(Vector(567, 20.5, 0), Vector(0, 0, 1), 7), math.radians(90), math.radians(270)),
], False)
sketch18.addConstraint([
    Sketcher.Constraint("Tangent", 0, 2, 1, 2),
    Sketcher.Constraint("Tangent", 1, 1, 2, 1),
    Sketcher.Constraint("Tangent", 2, 2, 3, 2),
    Sketcher.Constraint("Tangent", 3, 1, 0, 1),
    Sketcher.Constraint("Horizontal", 0),
    Sketcher.Constraint("Horizontal", 2),
    Sketcher.Constraint("Radius", 1, 7.0),
    Sketcher.Constraint("DistanceX", 0, 1, 0, 2, 16.0),
    Sketcher.Constraint("DistanceX", -1, 1, 1, 3, 583.0),
    Sketcher.Constraint("DistanceY", -1, 1, 1, 3, 20.5),
])
pocket16 = body.newObject("PartDesign::Pocket", "Pocket015")
pocket16.Profile = sketch18
pocket16.Type = "ThroughAll"
pocket16.Reversed = True

# Sketch on XY plane
sketch19 = body.newObject("Sketcher::SketchObject", "Sketch018")
sketch19.AttachmentSupport = (doc.getObject("XY_Plane"), [""])
sketch19.MapMode = "FlatFace"
sketch19.AttachmentOffset = App.Placement(Vector(0, 0, -11), App.Rotation())
sketch19.addGeometry([
    Part.LineSegment(Vector(467, 27.5, 0), Vector(483, 27.5, 0)),
    Part.ArcOfCircle(Part.Circle(Vector(483, 20.5, 0), Vector(0, 0, 1), 7), math.radians(-90), math.radians(90)),
    Part.LineSegment(Vector(483, 13.5, 0), Vector(467, 13.5, 0)),
    Part.ArcOfCircle(Part.Circle(Vector(467, 20.5, 0), Vector(0, 0, 1), 7), math.radians(90), math.radians(270)),
], False)
sketch19.addConstraint([
    Sketcher.Constraint("Tangent", 0, 2, 1, 2),
    Sketcher.Constraint("Tangent", 1, 1, 2, 1),
    Sketcher.Constraint("Tangent", 2, 2, 3, 2),
    Sketcher.Constraint("Tangent", 3, 1, 0, 1),
    Sketcher.Constraint("Horizontal", 0),
    Sketcher.Constraint("Horizontal", 2),
    Sketcher.Constraint("Radius", 1, 7.0),
    Sketcher.Constraint("DistanceX", 0, 1, 0, 2, 16.0),
    Sketcher.Constraint("DistanceX", -1, 1, 1, 3, 483.0),
    Sketcher.Constraint("DistanceY", -1, 1, 1, 3, 20.5),
])
pocket17 = body.newObject("PartDesign::Pocket", "Pocket016")
pocket17.Profile = sketch19
pocket17.Type = "ThroughAll"
pocket17.Reversed = True

# Sketch on XY plane
sketch20 = body.newObject("Sketcher::SketchObject", "Sketch019")
sketch20.AttachmentSupport = (doc.getObject("XY_Plane"), [""])
sketch20.MapMode = "FlatFace"
sketch20.AttachmentOffset = App.Placement(Vector(0, 0, -11), App.Rotation())
sketch20.addGeometry([
    Part.LineSegment(Vector(367, 27.5, 0), Vector(383, 27.5, 0)),
    Part.ArcOfCircle(Part.Circle(Vector(383, 20.5, 0), Vector(0, 0, 1), 7), math.radians(-90), math.radians(90)),
    Part.LineSegment(Vector(383, 13.5, 0), Vector(367, 13.5, 0)),
    Part.ArcOfCircle(Part.Circle(Vector(367, 20.5, 0), Vector(0, 0, 1), 7), math.radians(90), math.radians(270)),
], False)
sketch20.addConstraint([
    Sketcher.Constraint("Tangent", 0, 2, 1, 2),
    Sketcher.Constraint("Tangent", 1, 1, 2, 1),
    Sketcher.Constraint("Tangent", 2, 2, 3, 2),
    Sketcher.Constraint("Tangent", 3, 1, 0, 1),
    Sketcher.Constraint("Horizontal", 0),
    Sketcher.Constraint("Horizontal", 2),
    Sketcher.Constraint("Radius", 1, 7.0),
    Sketcher.Constraint("DistanceX", 0, 1, 0, 2, 16.0),
    Sketcher.Constraint("DistanceX", -1, 1, 1, 3, 383.0),
    Sketcher.Constraint("DistanceY", -1, 1, 1, 3, 20.5),
])
pocket18 = body.newObject("PartDesign::Pocket", "Pocket017")
pocket18.Profile = sketch20
pocket18.Type = "ThroughAll"
pocket18.Reversed = True

# Sketch on XY plane
sketch21 = body.newObject("Sketcher::SketchObject", "Sketch020")
sketch21.AttachmentSupport = (doc.getObject("XY_Plane"), [""])
sketch21.MapMode = "FlatFace"
sketch21.AttachmentOffset = App.Placement(Vector(0, 0, -11), App.Rotation())
sketch21.addGeometry([
    Part.LineSegment(Vector(267, 27.5, 0), Vector(283, 27.5, 0)),
    Part.ArcOfCircle(Part.Circle(Vector(283, 20.5, 0), Vector(0, 0, 1), 7), math.radians(-90), math.radians(90)),
    Part.LineSegment(Vector(283, 13.5, 0), Vector(267, 13.5, 0)),
    Part.ArcOfCircle(Part.Circle(Vector(267, 20.5, 0), Vector(0, 0, 1), 7), math.radians(90), math.radians(270)),
], False)
sketch21.addConstraint([
    Sketcher.Constraint("Tangent", 0, 2, 1, 2),
    Sketcher.Constraint("Tangent", 1, 1, 2, 1),
    Sketcher.Constraint("Tangent", 2, 2, 3, 2),
    Sketcher.Constraint("Tangent", 3, 1, 0, 1),
    Sketcher.Constraint("Horizontal", 0),
    Sketcher.Constraint("Horizontal", 2),
    Sketcher.Constraint("Radius", 1, 7.0),
    Sketcher.Constraint("DistanceX", 0, 1, 0, 2, 16.0),
    Sketcher.Constraint("DistanceX", -1, 1, 1, 3, 283.0),
    Sketcher.Constraint("DistanceY", -1, 1, 1, 3, 20.5),
])
pocket19 = body.newObject("PartDesign::Pocket", "Pocket018")
pocket19.Profile = sketch21
pocket19.Type = "ThroughAll"
pocket19.Reversed = True

# Sketch on XY plane
sketch22 = body.newObject("Sketcher::SketchObject", "Sketch021")
sketch22.AttachmentSupport = (doc.getObject("XY_Plane"), [""])
sketch22.MapMode = "FlatFace"
sketch22.AttachmentOffset = App.Placement(Vector(0, 0, -11), App.Rotation())
sketch22.addGeometry([
    Part.LineSegment(Vector(167, 27.5, 0), Vector(183, 27.5, 0)),
    Part.ArcOfCircle(Part.Circle(Vector(183, 20.5, 0), Vector(0, 0, 1), 7), math.radians(-90), math.radians(90)),
    Part.LineSegment(Vector(183, 13.5, 0), Vector(167, 13.5, 0)),
    Part.ArcOfCircle(Part.Circle(Vector(167, 20.5, 0), Vector(0, 0, 1), 7), math.radians(90), math.radians(270)),
], False)
sketch22.addConstraint([
    Sketcher.Constraint("Tangent", 0, 2, 1, 2),
    Sketcher.Constraint("Tangent", 1, 1, 2, 1),
    Sketcher.Constraint("Tangent", 2, 2, 3, 2),
    Sketcher.Constraint("Tangent", 3, 1, 0, 1),
    Sketcher.Constraint("Horizontal", 0),
    Sketcher.Constraint("Horizontal", 2),
    Sketcher.Constraint("Radius", 1, 7.0),
    Sketcher.Constraint("DistanceX", 0, 1, 0, 2, 16.0),
    Sketcher.Constraint("DistanceX", -1, 1, 1, 3, 183.0),
    Sketcher.Constraint("DistanceY", -1, 1, 1, 3, 20.5),
])
pocket20 = body.newObject("PartDesign::Pocket", "Pocket019")
pocket20.Profile = sketch22
pocket20.Type = "ThroughAll"
pocket20.Reversed = True

# Sketch on XY plane
sketch23 = body.newObject("Sketcher::SketchObject", "Sketch022")
sketch23.AttachmentSupport = (doc.getObject("XY_Plane"), [""])
sketch23.MapMode = "FlatFace"
sketch23.AttachmentOffset = App.Placement(Vector(0, 0, -11), App.Rotation())
sketch23.addGeometry([
    Part.LineSegment(Vector(67, 27.5, 0), Vector(83, 27.5, 0)),
    Part.ArcOfCircle(Part.Circle(Vector(83, 20.5, 0), Vector(0, 0, 1), 7), math.radians(-90), math.radians(90)),
    Part.LineSegment(Vector(83, 13.5, 0), Vector(67, 13.5, 0)),
    Part.ArcOfCircle(Part.Circle(Vector(67, 20.5, 0), Vector(0, 0, 1), 7), math.radians(90), math.radians(270)),
], False)
sketch23.addConstraint([
    Sketcher.Constraint("Tangent", 0, 2, 1, 2),
    Sketcher.Constraint("Tangent", 1, 1, 2, 1),
    Sketcher.Constraint("Tangent", 2, 2, 3, 2),
    Sketcher.Constraint("Tangent", 3, 1, 0, 1),
    Sketcher.Constraint("Horizontal", 0),
    Sketcher.Constraint("Horizontal", 2),
    Sketcher.Constraint("Radius", 1, 7.0),
    Sketcher.Constraint("DistanceX", 0, 1, 0, 2, 16.0),
    Sketcher.Constraint("DistanceX", -1, 1, 1, 3, 83.0),
    Sketcher.Constraint("DistanceY", -1, 1, 1, 3, 20.5),
])
pocket21 = body.newObject("PartDesign::Pocket", "Pocket020")
pocket21.Profile = sketch23
pocket21.Type = "ThroughAll"
pocket21.Reversed = True
doc.recompute()

fillet = body.newObject("PartDesign::Fillet", "Fillet")
fillet.Base = (pocket21, edges_at(pocket21, [(500, 7, 8.5), (500, 34, 8.5)]))
fillet.Radius = 1.2
doc.recompute()

fillet2 = body.newObject("PartDesign::Fillet", "Fillet001")
fillet2.Base = (fillet, edges_at(fillet, [
    (500, 38.5, 8.5),
    (500, 38.5, -8.5),
    (500, 2.5, -8.5),
    (500, 2.5, 8.5),
]))
fillet2.Radius = 1.6
doc.recompute()

fillet3 = body.newObject("PartDesign::Fillet", "Fillet002")
fillet3.Base = (fillet2, edges_at(fillet2, [
    (500, 41, 11),
    (500, 9.5, 11),
    (500, 31.5, 11),
    (500, 0, 11),
    (500, 41, -11),
    (500, 0, -11),
]))
fillet3.Radius = 2.5

# Sketch on XZ plane
sketch24 = body.newObject("Sketcher::SketchObject", "Sketch023")
sketch24.AttachmentSupport = (doc.getObject("XZ_Plane"), [""])
sketch24.MapMode = "FlatFace"
sketch24.AttachmentOffset = App.Placement(Vector(0, 0, -41), App.Rotation())
sketch24.addGeometry([
    Part.LineSegment(Vector(914.4, -11, 0), Vector(914.4, 11, 0)),
    Part.LineSegment(Vector(914.4, 11, 0), Vector(1000, 11, 0)),
    Part.LineSegment(Vector(1000, 11, 0), Vector(1000, -11, 0)),
    Part.LineSegment(Vector(1000, -11, 0), Vector(914.4, -11, 0)),
], False)
sketch24.addConstraint([
    Sketcher.Constraint("Coincident", 0, 2, 1, 1),
    Sketcher.Constraint("Coincident", 1, 2, 2, 1),
    Sketcher.Constraint("Coincident", 2, 2, 3, 1),
    Sketcher.Constraint("Coincident", 3, 2, 0, 1),
    Sketcher.Constraint("Vertical", 0),
    Sketcher.Constraint("Horizontal", 1),
    Sketcher.Constraint("Vertical", 2),
    Sketcher.Constraint("Horizontal", 3),
    Sketcher.Constraint("DistanceY", 0, 1, 0, 2, 22.0),
    Sketcher.Constraint("DistanceX", 1, 1, 1, 2, 85.6),
    Sketcher.Constraint("DistanceY", -1, 1, 0, 2, 11.0),
    Sketcher.Constraint("DistanceX", -1, 1, 1, 2, 1000.0),
])
pocket22 = body.newObject("PartDesign::Pocket", "Pocket021")
pocket22.Profile = sketch24
pocket22.Type = "ThroughAll"
pocket22.Reversed = True

doc.recompute()
